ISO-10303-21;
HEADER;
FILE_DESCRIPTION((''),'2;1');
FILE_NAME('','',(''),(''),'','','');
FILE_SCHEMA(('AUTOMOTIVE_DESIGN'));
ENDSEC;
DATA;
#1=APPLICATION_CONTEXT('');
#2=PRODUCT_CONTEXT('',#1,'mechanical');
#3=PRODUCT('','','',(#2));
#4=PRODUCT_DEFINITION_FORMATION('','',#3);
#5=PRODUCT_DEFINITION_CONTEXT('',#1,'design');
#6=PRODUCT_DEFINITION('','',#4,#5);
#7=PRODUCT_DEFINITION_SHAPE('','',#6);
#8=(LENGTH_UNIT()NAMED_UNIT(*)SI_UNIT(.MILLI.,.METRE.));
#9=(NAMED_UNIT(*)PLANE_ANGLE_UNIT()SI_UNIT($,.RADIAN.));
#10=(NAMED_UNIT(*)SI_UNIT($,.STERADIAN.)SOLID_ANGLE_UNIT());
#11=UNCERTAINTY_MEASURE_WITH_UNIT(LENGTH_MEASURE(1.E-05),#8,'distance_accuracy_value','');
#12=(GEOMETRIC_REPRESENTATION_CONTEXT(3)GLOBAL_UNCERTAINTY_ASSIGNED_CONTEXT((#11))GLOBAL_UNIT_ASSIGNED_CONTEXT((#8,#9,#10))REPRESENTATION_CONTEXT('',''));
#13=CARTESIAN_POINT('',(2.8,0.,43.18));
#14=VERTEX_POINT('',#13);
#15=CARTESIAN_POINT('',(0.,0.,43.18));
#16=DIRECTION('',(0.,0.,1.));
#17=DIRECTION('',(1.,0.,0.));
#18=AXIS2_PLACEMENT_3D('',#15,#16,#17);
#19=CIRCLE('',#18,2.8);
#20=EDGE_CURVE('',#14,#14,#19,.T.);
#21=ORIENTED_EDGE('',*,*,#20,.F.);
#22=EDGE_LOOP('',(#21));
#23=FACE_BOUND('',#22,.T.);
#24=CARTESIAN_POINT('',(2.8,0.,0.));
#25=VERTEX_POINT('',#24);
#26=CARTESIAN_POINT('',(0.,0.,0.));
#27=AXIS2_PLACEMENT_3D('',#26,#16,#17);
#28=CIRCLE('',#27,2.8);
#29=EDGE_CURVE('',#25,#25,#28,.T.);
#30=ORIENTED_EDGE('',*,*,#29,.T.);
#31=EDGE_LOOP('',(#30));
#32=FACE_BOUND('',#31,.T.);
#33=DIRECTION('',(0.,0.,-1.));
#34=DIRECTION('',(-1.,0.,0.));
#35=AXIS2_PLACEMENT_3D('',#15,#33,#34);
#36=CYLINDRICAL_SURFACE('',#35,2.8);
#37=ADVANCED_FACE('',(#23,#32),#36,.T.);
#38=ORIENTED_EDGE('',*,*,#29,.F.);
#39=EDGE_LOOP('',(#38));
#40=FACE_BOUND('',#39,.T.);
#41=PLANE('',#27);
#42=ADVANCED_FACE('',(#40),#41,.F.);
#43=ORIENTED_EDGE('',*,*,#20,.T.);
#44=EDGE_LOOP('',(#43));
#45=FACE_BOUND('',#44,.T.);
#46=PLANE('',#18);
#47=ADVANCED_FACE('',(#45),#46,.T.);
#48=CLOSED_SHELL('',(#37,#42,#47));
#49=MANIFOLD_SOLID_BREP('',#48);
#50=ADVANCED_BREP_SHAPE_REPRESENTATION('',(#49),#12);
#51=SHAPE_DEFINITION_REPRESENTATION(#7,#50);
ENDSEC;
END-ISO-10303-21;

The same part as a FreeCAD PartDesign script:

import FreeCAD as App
import Part
import Sketcher

doc = App.newDocument("Part")
body = doc.addObject("PartDesign::Body", "Body")

sketch1 = body.newObject("Sketcher::SketchObject", "Sketch")
sketch1.AttachmentSupport = (doc.getObject("XY_Plane"), [""])
sketch1.MapMode = "FlatFace"
sketch1.addGeometry(Part.Circle(App.Vector(0, 0, 0), App.Vector(0, 0, 1), 2.8), False)
sketch1.addConstraint(Sketcher.Constraint("Coincident", 0, 3, -1, 1))
sketch1.addConstraint(Sketcher.Constraint("Diameter", 0, 5.6))
pad1 = body.newObject("PartDesign::Pad", "Pad")
pad1.Profile = sketch1
pad1.Length = 43.18

doc.recompute()
